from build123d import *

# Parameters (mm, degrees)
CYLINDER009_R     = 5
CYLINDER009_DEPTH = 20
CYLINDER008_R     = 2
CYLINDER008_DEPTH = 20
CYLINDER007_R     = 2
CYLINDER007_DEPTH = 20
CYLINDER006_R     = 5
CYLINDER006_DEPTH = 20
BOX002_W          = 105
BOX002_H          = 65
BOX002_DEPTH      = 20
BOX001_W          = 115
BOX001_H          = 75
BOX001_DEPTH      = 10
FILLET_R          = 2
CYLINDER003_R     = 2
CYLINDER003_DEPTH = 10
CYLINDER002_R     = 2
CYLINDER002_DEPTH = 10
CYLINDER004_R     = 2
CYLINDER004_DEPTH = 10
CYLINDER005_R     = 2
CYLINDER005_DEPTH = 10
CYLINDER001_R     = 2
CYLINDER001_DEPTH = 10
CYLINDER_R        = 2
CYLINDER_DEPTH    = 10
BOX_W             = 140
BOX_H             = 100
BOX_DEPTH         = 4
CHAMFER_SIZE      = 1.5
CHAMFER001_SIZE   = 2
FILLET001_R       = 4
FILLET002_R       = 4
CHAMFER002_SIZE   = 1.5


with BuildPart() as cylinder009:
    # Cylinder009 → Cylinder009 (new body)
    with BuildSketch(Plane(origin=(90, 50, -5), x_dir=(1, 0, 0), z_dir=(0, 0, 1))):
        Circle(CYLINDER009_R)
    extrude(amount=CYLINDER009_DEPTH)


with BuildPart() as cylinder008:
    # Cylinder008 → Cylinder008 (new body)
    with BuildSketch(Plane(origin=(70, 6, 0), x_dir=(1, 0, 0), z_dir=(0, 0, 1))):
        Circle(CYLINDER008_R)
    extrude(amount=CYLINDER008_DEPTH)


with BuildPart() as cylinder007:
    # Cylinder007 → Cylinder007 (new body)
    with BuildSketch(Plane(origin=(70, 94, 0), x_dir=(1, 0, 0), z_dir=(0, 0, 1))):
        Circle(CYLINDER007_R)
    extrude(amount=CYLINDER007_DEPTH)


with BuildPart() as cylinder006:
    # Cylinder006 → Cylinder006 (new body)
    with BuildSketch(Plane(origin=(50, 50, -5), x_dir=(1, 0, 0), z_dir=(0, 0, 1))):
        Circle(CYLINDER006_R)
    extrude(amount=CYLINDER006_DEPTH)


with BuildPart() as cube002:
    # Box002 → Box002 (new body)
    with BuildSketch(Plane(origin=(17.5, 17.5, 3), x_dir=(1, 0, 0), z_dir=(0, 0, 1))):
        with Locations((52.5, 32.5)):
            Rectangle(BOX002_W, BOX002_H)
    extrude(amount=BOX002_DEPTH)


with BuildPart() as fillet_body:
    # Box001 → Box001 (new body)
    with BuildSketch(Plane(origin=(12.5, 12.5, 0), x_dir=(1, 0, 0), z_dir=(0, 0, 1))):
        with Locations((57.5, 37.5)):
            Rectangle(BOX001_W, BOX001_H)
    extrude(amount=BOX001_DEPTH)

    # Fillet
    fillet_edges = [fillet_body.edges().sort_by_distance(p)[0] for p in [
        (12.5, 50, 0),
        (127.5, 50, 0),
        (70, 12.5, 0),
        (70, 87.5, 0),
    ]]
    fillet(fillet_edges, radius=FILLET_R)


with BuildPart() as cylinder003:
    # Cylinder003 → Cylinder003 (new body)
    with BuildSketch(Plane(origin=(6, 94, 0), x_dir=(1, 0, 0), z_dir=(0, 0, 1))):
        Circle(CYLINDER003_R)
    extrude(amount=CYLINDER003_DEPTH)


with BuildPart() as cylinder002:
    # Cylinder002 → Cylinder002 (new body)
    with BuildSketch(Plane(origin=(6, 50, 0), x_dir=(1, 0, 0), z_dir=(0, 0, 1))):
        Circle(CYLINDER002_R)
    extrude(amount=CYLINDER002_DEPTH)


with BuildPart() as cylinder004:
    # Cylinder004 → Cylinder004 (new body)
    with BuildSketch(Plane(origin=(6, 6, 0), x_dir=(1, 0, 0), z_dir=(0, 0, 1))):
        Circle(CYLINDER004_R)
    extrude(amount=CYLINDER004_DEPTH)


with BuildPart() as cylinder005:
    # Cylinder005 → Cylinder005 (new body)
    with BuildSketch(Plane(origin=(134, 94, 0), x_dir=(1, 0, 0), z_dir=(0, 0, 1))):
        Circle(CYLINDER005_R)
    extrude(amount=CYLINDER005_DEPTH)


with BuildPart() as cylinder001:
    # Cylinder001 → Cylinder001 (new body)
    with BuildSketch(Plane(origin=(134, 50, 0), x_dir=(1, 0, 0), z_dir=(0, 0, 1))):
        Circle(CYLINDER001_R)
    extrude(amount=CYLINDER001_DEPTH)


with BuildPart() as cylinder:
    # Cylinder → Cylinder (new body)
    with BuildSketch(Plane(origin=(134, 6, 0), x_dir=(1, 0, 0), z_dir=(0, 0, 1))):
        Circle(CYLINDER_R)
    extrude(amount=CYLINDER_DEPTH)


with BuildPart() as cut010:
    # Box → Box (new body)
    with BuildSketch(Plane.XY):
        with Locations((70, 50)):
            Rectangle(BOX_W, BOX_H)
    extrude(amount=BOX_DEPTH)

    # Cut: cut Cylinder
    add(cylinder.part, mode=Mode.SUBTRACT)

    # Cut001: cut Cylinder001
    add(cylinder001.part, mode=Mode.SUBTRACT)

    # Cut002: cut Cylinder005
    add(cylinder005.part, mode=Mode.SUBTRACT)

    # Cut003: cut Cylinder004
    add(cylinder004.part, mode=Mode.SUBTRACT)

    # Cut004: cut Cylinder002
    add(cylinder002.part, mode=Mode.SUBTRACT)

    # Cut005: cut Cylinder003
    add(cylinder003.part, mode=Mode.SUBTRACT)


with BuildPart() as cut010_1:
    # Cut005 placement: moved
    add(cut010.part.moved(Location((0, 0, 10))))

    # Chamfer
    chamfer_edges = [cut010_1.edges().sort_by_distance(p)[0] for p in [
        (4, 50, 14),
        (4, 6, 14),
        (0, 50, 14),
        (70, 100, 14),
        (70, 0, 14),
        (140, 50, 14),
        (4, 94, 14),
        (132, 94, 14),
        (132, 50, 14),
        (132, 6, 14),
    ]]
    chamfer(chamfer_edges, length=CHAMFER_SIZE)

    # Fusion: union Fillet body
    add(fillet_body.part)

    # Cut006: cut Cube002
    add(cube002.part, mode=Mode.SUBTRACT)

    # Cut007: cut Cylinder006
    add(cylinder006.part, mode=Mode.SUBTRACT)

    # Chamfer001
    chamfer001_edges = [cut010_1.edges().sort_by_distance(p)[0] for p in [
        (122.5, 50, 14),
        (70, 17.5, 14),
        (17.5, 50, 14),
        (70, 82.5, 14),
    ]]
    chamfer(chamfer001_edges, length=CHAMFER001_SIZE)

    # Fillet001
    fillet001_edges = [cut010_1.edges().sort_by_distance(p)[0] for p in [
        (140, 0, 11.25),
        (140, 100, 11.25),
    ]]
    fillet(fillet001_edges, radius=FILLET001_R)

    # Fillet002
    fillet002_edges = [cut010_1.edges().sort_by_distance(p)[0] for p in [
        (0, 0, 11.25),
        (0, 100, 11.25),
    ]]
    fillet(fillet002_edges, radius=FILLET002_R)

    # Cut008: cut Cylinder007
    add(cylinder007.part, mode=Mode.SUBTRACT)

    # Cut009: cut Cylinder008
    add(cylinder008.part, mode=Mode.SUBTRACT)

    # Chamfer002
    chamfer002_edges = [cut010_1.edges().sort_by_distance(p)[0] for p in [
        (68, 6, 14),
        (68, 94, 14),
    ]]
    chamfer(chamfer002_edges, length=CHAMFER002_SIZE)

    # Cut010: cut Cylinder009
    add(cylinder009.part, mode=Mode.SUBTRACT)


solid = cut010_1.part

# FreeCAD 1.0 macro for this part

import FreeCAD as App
import Part
import Sketcher

V = App.Vector
Q = App.Units.Quantity


def edges_at(feature, points):
    """Names of the edges that pass closest to the given points."""
    edges = feature.Shape.Edges
    near = lambda p: min(range(len(edges)), key=lambda i: edges[i].distToShape(Part.Vertex(*p))[0])
    return sorted({f"Edge{near(p) + 1}" for p in points})

doc = App.newDocument("Part")
params = doc.addObject("Spreadsheet::Sheet", "Params")
for row, (alias, value) in enumerate([
    ("sketch1_diameter", "10 mm"),
    ("pad1_length", "20 mm"),
    ("sketch2_diameter", "4 mm"),
    ("pad2_length", "20 mm"),
    ("sketch3_diameter", "4 mm"),
    ("pad3_length", "20 mm"),
    ("sketch4_diameter", "10 mm"),
    ("pad4_length", "20 mm"),
    ("sketch5_width", "105 mm"),
    ("sketch5_height", "65 mm"),
    ("pad5_length", "20 mm"),
    ("sketch6_width", "115 mm"),
    ("sketch6_height", "75 mm"),
    ("pad6_length", "10 mm"),
    ("fillet_radius", "2 mm"),
    ("sketch7_diameter", "4 mm"),
    ("pad7_length", "10 mm"),
    ("sketch8_diameter", "4 mm"),
    ("pad8_length", "10 mm"),
    ("sketch9_diameter", "4 mm"),
    ("pad9_length", "10 mm"),
    ("sketch10_diameter", "4 mm"),
    ("pad10_length", "10 mm"),
    ("sketch11_diameter", "4 mm"),
    ("pad11_length", "10 mm"),
    ("sketch12_diameter", "4 mm"),
    ("pad12_length", "10 mm"),
    ("sketch13_width", "140 mm"),
    ("sketch13_height", "100 mm"),
    ("pad13_length", "4 mm"),
    ("chamfer_size", "1.5 mm"),
    ("chamfer2_size", "2 mm"),
    ("fillet2_radius", "4 mm"),
    ("fillet3_radius", "4 mm"),
    ("chamfer3_size", "1.5 mm"),
], start=1):
    params.set(f"A{row}", alias)
    params.set(f"B{row}", "=" + value)
    params.setAlias(f"B{row}", alias)

body = doc.addObject("PartDesign::Body", "Body")

# Sketch on XY plane
sketch1 = doc.addObject("Sketcher::SketchObject", "Sketch")
body.addObject(sketch1)
sketch1.AttachmentSupport = (doc.XY_Plane, [""])
sketch1.MapMode = "FlatFace"
sketch1.AttachmentOffset = App.Placement(V(0, 0, -5), App.Rotation())
sketch1.addGeometry(Part.Circle(V(90, 50, 0), V(0, 0, 1), 5), False)
sketch1.addConstraint(Sketcher.Constraint("Diameter", 0, Q("10 mm")))
sketch1.addConstraint(Sketcher.Constraint("DistanceX", -1, 1, 0, 3, Q("90 mm")))
sketch1.addConstraint(Sketcher.Constraint("DistanceY", -1, 1, 0, 3, Q("50 mm")))
sketch1.setExpression("Constraints[0]", "Params.sketch1_diameter")
pad1 = doc.addObject("PartDesign::Pad", "Pad")
body.addObject(pad1)
pad1.Profile = sketch1
pad1.setExpression("Length", "Params.pad1_length")
body2 = doc.addObject("PartDesign::Body", "Body001")

# Sketch on XY plane
sketch2 = doc.addObject("Sketcher::SketchObject", "Sketch001")
body2.addObject(sketch2)
sketch2.AttachmentSupport = (doc.getObject("XY_Plane001"), [""])
sketch2.MapMode = "FlatFace"
sketch2.addGeometry(Part.Circle(V(70, 6, 0), V(0, 0, 1), 2), False)
sketch2.addConstraint(Sketcher.Constraint("Diameter", 0, Q("4 mm")))
sketch2.addConstraint(Sketcher.Constraint("DistanceX", -1, 1, 0, 3, Q("70 mm")))
sketch2.addConstraint(Sketcher.Constraint("DistanceY", -1, 1, 0, 3, Q("6 mm")))
sketch2.setExpression("Constraints[0]", "Params.sketch2_diameter")
pad2 = doc.addObject("PartDesign::Pad", "Pad001")
body2.addObject(pad2)
pad2.Profile = sketch2
pad2.setExpression("Length", "Params.pad2_length")
body3 = doc.addObject("PartDesign::Body", "Body002")

# Sketch on XY plane
sketch3 = doc.addObject("Sketcher::SketchObject", "Sketch002")
body3.addObject(sketch3)
sketch3.AttachmentSupport = (doc.getObject("XY_Plane002"), [""])
sketch3.MapMode = "FlatFace"
sketch3.addGeometry(Part.Circle(V(70, 94, 0), V(0, 0, 1), 2), False)
sketch3.addConstraint(Sketcher.Constraint("Diameter", 0, Q("4 mm")))
sketch3.addConstraint(Sketcher.Constraint("DistanceX", -1, 1, 0, 3, Q("70 mm")))
sketch3.addConstraint(Sketcher.Constraint("DistanceY", -1, 1, 0, 3, Q("94 mm")))
sketch3.setExpression("Constraints[0]", "Params.sketch3_diameter")
pad3 = doc.addObject("PartDesign::Pad", "Pad002")
body3.addObject(pad3)
pad3.Profile = sketch3
pad3.setExpression("Length", "Params.pad3_length")
body4 = doc.addObject("PartDesign::Body", "Body003")

# Sketch on XY plane
sketch4 = doc.addObject("Sketcher::SketchObject", "Sketch003")
body4.addObject(sketch4)
sketch4.AttachmentSupport = (doc.getObject("XY_Plane003"), [""])
sketch4.MapMode = "FlatFace"
sketch4.AttachmentOffset = App.Placement(V(0, 0, -5), App.Rotation())
sketch4.addGeometry(Part.Circle(V(50, 50, 0), V(0, 0, 1), 5), False)
sketch4.addConstraint(Sketcher.Constraint("Diameter", 0, Q("10 mm")))
sketch4.addConstraint(Sketcher.Constraint("DistanceX", -1, 1, 0, 3, Q("50 mm")))
sketch4.addConstraint(Sketcher.Constraint("DistanceY", -1, 1, 0, 3, Q("50 mm")))
sketch4.setExpression("Constraints[0]", "Params.sketch4_diameter")
pad4 = doc.addObject("PartDesign::Pad", "Pad003")
body4.addObject(pad4)
pad4.Profile = sketch4
pad4.setExpression("Length", "Params.pad4_length")
body5 = doc.addObject("PartDesign::Body", "Body004")

# Sketch on XY plane
sketch5 = doc.addObject("Sketcher::SketchObject", "Sketch004")
body5.addObject(sketch5)
sketch5.AttachmentSupport = (doc.getObject("XY_Plane004"), [""])
sketch5.MapMode = "FlatFace"
sketch5.AttachmentOffset = App.Placement(V(0, 0, 3), App.Rotation())
sketch5.addGeometry(Part.LineSegment(V(18, 82, 0), V(18, 18, 0)), False)
sketch5.addGeometry(Part.LineSegment(V(18, 18, 0), V(122, 18, 0)), False)
sketch5.addGeometry(Part.LineSegment(V(122, 18, 0), V(122, 82, 0)), False)
sketch5.addGeometry(Part.LineSegment(V(122, 82, 0), V(18, 82, 0)), False)
sketch5.addConstraint(Sketcher.Constraint("Coincident", 0, 2, 1, 1))
sketch5.addConstraint(Sketcher.Constraint("Coincident", 1, 2, 2, 1))
sketch5.addConstraint(Sketcher.Constraint("Coincident", 2, 2, 3, 1))
sketch5.addConstraint(Sketcher.Constraint("Coincident", 3, 2, 0, 1))
sketch5.addConstraint(Sketcher.Constraint("Vertical", 0))
sketch5.addConstraint(Sketcher.Constraint("Horizontal", 1))
sketch5.addConstraint(Sketcher.Constraint("Vertical", 2))
sketch5.addConstraint(Sketcher.Constraint("Horizontal", 3))
sketch5.addConstraint(Sketcher.Constraint("DistanceX", 1, 1, 1, 2, Q("105 mm")))
sketch5.addConstraint(Sketcher.Constraint("DistanceY", 0, 2, 0, 1, Q("65 mm")))
sketch5.addConstraint(Sketcher.Constraint("DistanceX", -1, 1, 0, 2, Q("17.5 mm")))
sketch5.addConstraint(Sketcher.Constraint("DistanceY", -1, 1, 0, 2, Q("17.5 mm")))
sketch5.setExpression("Constraints[8]", "Params.sketch5_width")
sketch5.setExpression("Constraints[9]", "Params.sketch5_height")
pad5 = doc.addObject("PartDesign::Pad", "Pad004")
body5.addObject(pad5)
pad5.Profile = sketch5
pad5.setExpression("Length", "Params.pad5_length")
body6 = doc.addObject("PartDesign::Body", "Body005")

# Sketch on XY plane
sketch6 = doc.addObject("Sketcher::SketchObject", "Sketch005")
body6.addObject(sketch6)
sketch6.AttachmentSupport = (doc.getObject("XY_Plane005"), [""])
sketch6.MapMode = "FlatFace"
sketch6.addGeometry(Part.LineSegment(V(12, 88, 0), V(12, 12, 0)), False)
sketch6.addGeometry(Part.LineSegment(V(12, 12, 0), V(128, 12, 0)), False)
sketch6.addGeometry(Part.LineSegment(V(128, 12, 0), V(128, 88, 0)), False)
sketch6.addGeometry(Part.LineSegment(V(128, 88, 0), V(12, 88, 0)), False)
sketch6.addConstraint(Sketcher.Constraint("Coincident", 0, 2, 1, 1))
sketch6.addConstraint(Sketcher.Constraint("Coincident", 1, 2, 2, 1))
sketch6.addConstraint(Sketcher.Constraint("Coincident", 2, 2, 3, 1))
sketch6.addConstraint(Sketcher.Constraint("Coincident", 3, 2, 0, 1))
sketch6.addConstraint(Sketcher.Constraint("Vertical", 0))
sketch6.addConstraint(Sketcher.Constraint("Horizontal", 1))
sketch6.addConstraint(Sketcher.Constraint("Vertical", 2))
sketch6.addConstraint(Sketcher.Constraint("Horizontal", 3))
sketch6.addConstraint(Sketcher.Constraint("DistanceX", 1, 1, 1, 2, Q("115 mm")))
sketch6.addConstraint(Sketcher.Constraint("DistanceY", 0, 2, 0, 1, Q("75 mm")))
sketch6.addConstraint(Sketcher.Constraint("DistanceX", -1, 1, 0, 2, Q("12.5 mm")))
sketch6.addConstraint(Sketcher.Constraint("DistanceY", -1, 1, 0, 2, Q("12.5 mm")))
sketch6.setExpression("Constraints[8]", "Params.sketch6_width")
sketch6.setExpression("Constraints[9]", "Params.sketch6_height")
pad6 = doc.addObject("PartDesign::Pad", "Pad005")
body6.addObject(pad6)
pad6.Profile = sketch6
pad6.setExpression("Length", "Params.pad6_length")
doc.recompute()

fillet = doc.addObject("PartDesign::Fillet", "Fillet")
body6.addObject(fillet)
fillet.Base = (pad6, edges_at(pad6, [
    (12.5, 50, 0),
    (127.5, 50, 0),
    (70, 12.5, 0),
    (70, 87.5, 0),
]))
fillet.setExpression("Radius", "Params.fillet_radius")
body7 = doc.addObject("PartDesign::Body", "Body006")

# Sketch on XY plane
sketch7 = doc.addObject("Sketcher::SketchObject", "Sketch006")
body7.addObject(sketch7)
sketch7.AttachmentSupport = (doc.getObject("XY_Plane006"), [""])
sketch7.MapMode = "FlatFace"
sketch7.addGeometry(Part.Circle(V(6, 94, 0), V(0, 0, 1), 2), False)
sketch7.addConstraint(Sketcher.Constraint("Diameter", 0, Q("4 mm")))
sketch7.addConstraint(Sketcher.Constraint("DistanceX", -1, 1, 0, 3, Q("6 mm")))
sketch7.addConstraint(Sketcher.Constraint("DistanceY", -1, 1, 0, 3, Q("94 mm")))
sketch7.setExpression("Constraints[0]", "Params.sketch7_diameter")
pad7 = doc.addObject("PartDesign::Pad", "Pad006")
body7.addObject(pad7)
pad7.Profile = sketch7
pad7.setExpression("Length", "Params.pad7_length")
body8 = doc.addObject("PartDesign::Body", "Body007")

# Sketch on XY plane
sketch8 = doc.addObject("Sketcher::SketchObject", "Sketch007")
body8.addObject(sketch8)
sketch8.AttachmentSupport = (doc.getObject("XY_Plane007"), [""])
sketch8.MapMode = "FlatFace"
sketch8.addGeometry(Part.Circle(V(6, 50, 0), V(0, 0, 1), 2), False)
sketch8.addConstraint(Sketcher.Constraint("Diameter", 0, Q("4 mm")))
sketch8.addConstraint(Sketcher.Constraint("DistanceX", -1, 1, 0, 3, Q("6 mm")))
sketch8.addConstraint(Sketcher.Constraint("DistanceY", -1, 1, 0, 3, Q("50 mm")))
sketch8.setExpression("Constraints[0]", "Params.sketch8_diameter")
pad8 = doc.addObject("PartDesign::Pad", "Pad007")
body8.addObject(pad8)
pad8.Profile = sketch8
pad8.setExpression("Length", "Params.pad8_length")
body9 = doc.addObject("PartDesign::Body", "Body008")

# Sketch on XY plane
sketch9 = doc.addObject("Sketcher::SketchObject", "Sketch008")
body9.addObject(sketch9)
sketch9.AttachmentSupport = (doc.getObject("XY_Plane008"), [""])
sketch9.MapMode = "FlatFace"
sketch9.addGeometry(Part.Circle(V(6, 6, 0), V(0, 0, 1), 2), False)
sketch9.addConstraint(Sketcher.Constraint("Diameter", 0, Q("4 mm")))
sketch9.addConstraint(Sketcher.Constraint("DistanceX", -1, 1, 0, 3, Q("6 mm")))
sketch9.addConstraint(Sketcher.Constraint("DistanceY", -1, 1, 0, 3, Q("6 mm")))
sketch9.setExpression("Constraints[0]", "Params.sketch9_diameter")
pad9 = doc.addObject("PartDesign::Pad", "Pad008")
body9.addObject(pad9)
pad9.Profile = sketch9
pad9.setExpression("Length", "Params.pad9_length")
body10 = doc.addObject("PartDesign::Body", "Body009")

# Sketch on XY plane
sketch10 = doc.addObject("Sketcher::SketchObject", "Sketch009")
body10.addObject(sketch10)
sketch10.AttachmentSupport = (doc.getObject("XY_Plane009"), [""])
sketch10.MapMode = "FlatFace"
sketch10.addGeometry(Part.Circle(V(134, 94, 0), V(0, 0, 1), 2), False)
sketch10.addConstraint(Sketcher.Constraint("Diameter", 0, Q("4 mm")))
sketch10.addConstraint(Sketcher.Constraint("DistanceX", -1, 1, 0, 3, Q("134 mm")))
sketch10.addConstraint(Sketcher.Constraint("DistanceY", -1, 1, 0, 3, Q("94 mm")))
sketch10.setExpression("Constraints[0]", "Params.sketch10_diameter")
pad10 = doc.addObject("PartDesign::Pad", "Pad009")
body10.addObject(pad10)
pad10.Profile = sketch10
pad10.setExpression("Length", "Params.pad10_length")
body11 = doc.addObject("PartDesign::Body", "Body010")

# Sketch on XY plane
sketch11 = doc.addObject("Sketcher::SketchObject", "Sketch010")
body11.addObject(sketch11)
sketch11.AttachmentSupport = (doc.getObject("XY_Plane010"), [""])
sketch11.MapMode = "FlatFace"
sketch11.addGeometry(Part.Circle(V(134, 50, 0), V(0, 0, 1), 2), False)
sketch11.addConstraint(Sketcher.Constraint("Diameter", 0, Q("4 mm")))
sketch11.addConstraint(Sketcher.Constraint("DistanceX", -1, 1, 0, 3, Q("134 mm")))
sketch11.addConstraint(Sketcher.Constraint("DistanceY", -1, 1, 0, 3, Q("50 mm")))
sketch11.setExpression("Constraints[0]", "Params.sketch11_diameter")
pad11 = doc.addObject("PartDesign::Pad", "Pad010")
body11.addObject(pad11)
pad11.Profile = sketch11
pad11.setExpression("Length", "Params.pad11_length")
body12 = doc.addObject("PartDesign::Body", "Body011")

# Sketch on XY plane
sketch12 = doc.addObject("Sketcher::SketchObject", "Sketch011")
body12.addObject(sketch12)
sketch12.AttachmentSupport = (doc.getObject("XY_Plane011"), [""])
sketch12.MapMode = "FlatFace"
sketch12.addGeometry(Part.Circle(V(134, 6, 0), V(0, 0, 1), 2), False)
sketch12.addConstraint(Sketcher.Constraint("Diameter", 0, Q("4 mm")))
sketch12.addConstraint(Sketcher.Constraint("DistanceX", -1, 1, 0, 3, Q("134 mm")))
sketch12.addConstraint(Sketcher.Constraint("DistanceY", -1, 1, 0, 3, Q("6 mm")))
sketch12.setExpression("Constraints[0]", "Params.sketch12_diameter")
pad12 = doc.addObject("PartDesign::Pad", "Pad011")
body12.addObject(pad12)
pad12.Profile = sketch12
pad12.setExpression("Length", "Params.pad12_length")
body13 = doc.addObject("PartDesign::Body", "Body012")

# Sketch on XY plane
sketch13 = doc.addObject("Sketcher::SketchObject", "Sketch012")
body13.addObject(sketch13)
sketch13.AttachmentSupport = (doc.getObject("XY_Plane012"), [""])
sketch13.MapMode = "FlatFace"
sketch13.addGeometry(Part.LineSegment(V(0, 100, 0), V(0, 0, 0)), False)
sketch13.addGeometry(Part.LineSegment(V(0, 0, 0), V(140, 0, 0)), False)
sketch13.addGeometry(Part.LineSegment(V(140, 0, 0), V(140, 100, 0)), False)
sketch13.addGeometry(Part.LineSegment(V(140, 100, 0), V(0, 100, 0)), False)
sketch13.addConstraint(Sketcher.Constraint("Coincident", 0, 2, 1, 1))
sketch13.addConstraint(Sketcher.Constraint("Coincident", 1, 2, 2, 1))
sketch13.addConstraint(Sketcher.Constraint("Coincident", 2, 2, 3, 1))
sketch13.addConstraint(Sketcher.Constraint("Coincident", 3, 2, 0, 1))
sketch13.addConstraint(Sketcher.Constraint("Vertical", 0))
sketch13.addConstraint(Sketcher.Constraint("Horizontal", 1))
sketch13.addConstraint(Sketcher.Constraint("Vertical", 2))
sketch13.addConstraint(Sketcher.Constraint("Horizontal", 3))
sketch13.addConstraint(Sketcher.Constraint("Coincident", 0, 2, -1, 1))
sketch13.addConstraint(Sketcher.Constraint("DistanceX", 1, 1, 1, 2, Q("140 mm")))
sketch13.addConstraint(Sketcher.Constraint("DistanceY", 0, 2, 0, 1, Q("100 mm")))
sketch13.setExpression("Constraints[9]", "Params.sketch13_width")
sketch13.setExpression("Constraints[10]", "Params.sketch13_height")
pad13 = doc.addObject("PartDesign::Pad", "Pad012")
body13.addObject(pad13)
pad13.Profile = sketch13
pad13.setExpression("Length", "Params.pad13_length")
doc.recompute()

boolean = doc.addObject("PartDesign::Boolean", "Boolean")
body13.addObject(boolean)
boolean.Type = "Cut"
boolean.addObjects([body12])
doc.recompute()

boolean2 = doc.addObject("PartDesign::Boolean", "Boolean001")
body13.addObject(boolean2)
boolean2.Type = "Cut"
boolean2.addObjects([body11])
doc.recompute()

boolean3 = doc.addObject("PartDesign::Boolean", "Boolean002")
body13.addObject(boolean3)
boolean3.Type = "Cut"
boolean3.addObjects([body10])
doc.recompute()

boolean4 = doc.addObject("PartDesign::Boolean", "Boolean003")
body13.addObject(boolean4)
boolean4.Type = "Cut"
boolean4.addObjects([body9])
doc.recompute()

boolean5 = doc.addObject("PartDesign::Boolean", "Boolean004")
body13.addObject(boolean5)
boolean5.Type = "Cut"
boolean5.addObjects([body8])
doc.recompute()

boolean6 = doc.addObject("PartDesign::Boolean", "Boolean005")
body13.addObject(boolean6)
boolean6.Type = "Cut"
boolean6.addObjects([body7])
body14 = doc.addObject("PartDesign::Body", "Body013")
doc.recompute()

body13.Placement = App.Placement(V(0, 0, 10), App.Rotation(V(0, 0, 1), 0))
boolean7 = doc.addObject("PartDesign::Boolean", "Boolean006")
body14.addObject(boolean7)
boolean7.Type = "Fuse"
boolean7.addObjects([body13])
doc.recompute()

chamfer = doc.addObject("PartDesign::Chamfer", "Chamfer")
body14.addObject(chamfer)
chamfer.Base = (boolean7, edges_at(boolean7, [
    (4, 50, 14),
    (4, 6, 14),
    (0, 50, 14),
    (70, 100, 14),
    (70, 0, 14),
    (140, 50, 14),
    (4, 94, 14),
    (132, 94, 14),
    (132, 50, 14),
    (132, 6, 14),
]))
chamfer.setExpression("Size", "Params.chamfer_size")
doc.recompute()

boolean8 = doc.addObject("PartDesign::Boolean", "Boolean007")
body14.addObject(boolean8)
boolean8.Type = "Fuse"
boolean8.addObjects([body6])
doc.recompute()

boolean9 = doc.addObject("PartDesign::Boolean", "Boolean008")
body14.addObject(boolean9)
boolean9.Type = "Cut"
boolean9.addObjects([body5])
doc.recompute()

boolean10 = doc.addObject("PartDesign::Boolean", "Boolean009")
body14.addObject(boolean10)
boolean10.Type = "Cut"
boolean10.addObjects([body4])
doc.recompute()

chamfer2 = doc.addObject("PartDesign::Chamfer", "Chamfer001")
body14.addObject(chamfer2)
chamfer2.Base = (boolean10, edges_at(boolean10, [
    (122.5, 50, 14),
    (70, 17.5, 14),
    (17.5, 50, 14),
    (70, 82.5, 14),
]))
chamfer2.setExpression("Size", "Params.chamfer2_size")
doc.recompute()

fillet2 = doc.addObject("PartDesign::Fillet", "Fillet001")
body14.addObject(fillet2)
fillet2.Base = (chamfer2, edges_at(chamfer2, [(140, 0, 11.25), (140, 100, 11.25)]))
fillet2.setExpression("Radius", "Params.fillet2_radius")
doc.recompute()

fillet3 = doc.addObject("PartDesign::Fillet", "Fillet002")
body14.addObject(fillet3)
fillet3.Base = (fillet2, edges_at(fillet2, [(0, 0, 11.25), (0, 100, 11.25)]))
fillet3.setExpression("Radius", "Params.fillet3_radius")
doc.recompute()

boolean11 = doc.addObject("PartDesign::Boolean", "Boolean010")
body14.addObject(boolean11)
boolean11.Type = "Cut"
boolean11.addObjects([body3])
doc.recompute()

boolean12 = doc.addObject("PartDesign::Boolean", "Boolean011")
body14.addObject(boolean12)
boolean12.Type = "Cut"
boolean12.addObjects([body2])
doc.recompute()

chamfer3 = doc.addObject("PartDesign::Chamfer", "Chamfer002")
body14.addObject(chamfer3)
chamfer3.Base = (boolean12, edges_at(boolean12, [(68, 6, 14), (68, 94, 14)]))
chamfer3.setExpression("Size", "Params.chamfer3_size")
doc.recompute()

boolean13 = doc.addObject("PartDesign::Boolean", "Boolean012")
body14.addObject(boolean13)
boolean13.Type = "Cut"
boolean13.addObjects([body])

doc.recompute()
